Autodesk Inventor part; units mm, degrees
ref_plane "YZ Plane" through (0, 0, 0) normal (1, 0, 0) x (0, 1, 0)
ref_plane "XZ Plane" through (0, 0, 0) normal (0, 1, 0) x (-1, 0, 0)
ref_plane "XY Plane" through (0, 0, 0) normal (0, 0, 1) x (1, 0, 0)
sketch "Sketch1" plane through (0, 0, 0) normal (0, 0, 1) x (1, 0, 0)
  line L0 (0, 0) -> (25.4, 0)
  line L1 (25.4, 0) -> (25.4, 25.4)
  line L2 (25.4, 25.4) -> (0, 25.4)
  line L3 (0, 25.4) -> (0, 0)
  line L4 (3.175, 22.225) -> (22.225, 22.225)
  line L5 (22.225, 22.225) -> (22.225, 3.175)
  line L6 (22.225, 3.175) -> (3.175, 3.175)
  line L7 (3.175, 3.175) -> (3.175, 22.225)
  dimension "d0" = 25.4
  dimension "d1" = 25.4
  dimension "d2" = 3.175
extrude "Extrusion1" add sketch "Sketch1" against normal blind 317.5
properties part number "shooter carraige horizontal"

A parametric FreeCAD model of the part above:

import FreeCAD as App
import Part
import Sketcher

V = App.Vector
Q = App.Units.Quantity

doc = App.newDocument("Part")
params = doc.addObject("Spreadsheet::Sheet", "Params")
for row, (alias, value) in enumerate([
    ("sketch1_width", "1 in"),
    ("pad1_length", "12.5 in"),
], start=1):
    params.set(f"A{row}", alias)
    params.set(f"B{row}", "=" + value)
    params.setAlias(f"B{row}", alias)

body = doc.addObject("PartDesign::Body", "Body")

sketch1 = body.newObject("Sketcher::SketchObject", "Sketch")
sketch1.AttachmentSupport = (doc.getObject("XY_Plane"), [""])
sketch1.MapMode = "FlatFace"
sketch1.addGeometry([
    Part.LineSegment(V(0, 25.4, 0), V(0, 0, 0)),
    Part.LineSegment(V(0, 0, 0), V(25.4, 0, 0)),
    Part.LineSegment(V(25.4, 0, 0), V(25.4, 25.4, 0)),
    Part.LineSegment(V(25.4, 25.4, 0), V(0, 25.4, 0)),
    Part.LineSegment(V(3.175, 3.175, 0), V(3.175, 22.225, 0)),
    Part.LineSegment(V(3.175, 22.225, 0), V(22.225, 22.225, 0)),
    Part.LineSegment(V(22.225, 22.225, 0), V(22.225, 3.175, 0)),
    Part.LineSegment(V(22.225, 3.175, 0), V(3.175, 3.175, 0)),
], False)
sketch1.addConstraint([
    Sketcher.Constraint("Coincident", 0, 2, 1, 1),
    Sketcher.Constraint("Coincident", 1, 2, 2, 1),
    Sketcher.Constraint("Coincident", 2, 2, 3, 1),
    Sketcher.Constraint("Coincident", 3, 2, 0, 1),
    Sketcher.Constraint("Coincident", 4, 2, 5, 1),
    Sketcher.Constraint("Coincident", 5, 2, 6, 1),
    Sketcher.Constraint("Coincident", 6, 2, 7, 1),
    Sketcher.Constraint("Coincident", 7, 2, 4, 1),
    Sketcher.Constraint("Vertical", 0),
    Sketcher.Constraint("Horizontal", 1),
    Sketcher.Constraint("Vertical", 2),
    Sketcher.Constraint("Horizontal", 3),
    Sketcher.Constraint("Vertical", 4),
    Sketcher.Constraint("Horizontal", 5),
    Sketcher.Constraint("Vertical", 6),
    Sketcher.Constraint("Horizontal", 7),
    Sketcher.Constraint("Coincident", 0, 2, -1, 1),
    Sketcher.Constraint("Equal", 3, 0),
    Sketcher.Constraint("Equal", 7, 4),
    Sketcher.Constraint("DistanceX", 1, 1, 1, 2, Q("1 in")),
    Sketcher.Constraint("DistanceX", -1, 1, 4, 2, Q("0.125 in")),
    Sketcher.Constraint("DistanceY", -1, 1, 6, 2, Q("0.125 in")),
    Sketcher.Constraint("DistanceY", 4, 2, 3, 2, Q("0.125 in")),
])
sketch1.setExpression("Constraints[19]", "Params.sketch1_width")
pad1 = body.newObject("PartDesign::Pad", "Pad")
pad1.Profile = sketch1
pad1.setExpression("Length", "Params.pad1_length")
pad1.Reversed = True

doc.recompute()
